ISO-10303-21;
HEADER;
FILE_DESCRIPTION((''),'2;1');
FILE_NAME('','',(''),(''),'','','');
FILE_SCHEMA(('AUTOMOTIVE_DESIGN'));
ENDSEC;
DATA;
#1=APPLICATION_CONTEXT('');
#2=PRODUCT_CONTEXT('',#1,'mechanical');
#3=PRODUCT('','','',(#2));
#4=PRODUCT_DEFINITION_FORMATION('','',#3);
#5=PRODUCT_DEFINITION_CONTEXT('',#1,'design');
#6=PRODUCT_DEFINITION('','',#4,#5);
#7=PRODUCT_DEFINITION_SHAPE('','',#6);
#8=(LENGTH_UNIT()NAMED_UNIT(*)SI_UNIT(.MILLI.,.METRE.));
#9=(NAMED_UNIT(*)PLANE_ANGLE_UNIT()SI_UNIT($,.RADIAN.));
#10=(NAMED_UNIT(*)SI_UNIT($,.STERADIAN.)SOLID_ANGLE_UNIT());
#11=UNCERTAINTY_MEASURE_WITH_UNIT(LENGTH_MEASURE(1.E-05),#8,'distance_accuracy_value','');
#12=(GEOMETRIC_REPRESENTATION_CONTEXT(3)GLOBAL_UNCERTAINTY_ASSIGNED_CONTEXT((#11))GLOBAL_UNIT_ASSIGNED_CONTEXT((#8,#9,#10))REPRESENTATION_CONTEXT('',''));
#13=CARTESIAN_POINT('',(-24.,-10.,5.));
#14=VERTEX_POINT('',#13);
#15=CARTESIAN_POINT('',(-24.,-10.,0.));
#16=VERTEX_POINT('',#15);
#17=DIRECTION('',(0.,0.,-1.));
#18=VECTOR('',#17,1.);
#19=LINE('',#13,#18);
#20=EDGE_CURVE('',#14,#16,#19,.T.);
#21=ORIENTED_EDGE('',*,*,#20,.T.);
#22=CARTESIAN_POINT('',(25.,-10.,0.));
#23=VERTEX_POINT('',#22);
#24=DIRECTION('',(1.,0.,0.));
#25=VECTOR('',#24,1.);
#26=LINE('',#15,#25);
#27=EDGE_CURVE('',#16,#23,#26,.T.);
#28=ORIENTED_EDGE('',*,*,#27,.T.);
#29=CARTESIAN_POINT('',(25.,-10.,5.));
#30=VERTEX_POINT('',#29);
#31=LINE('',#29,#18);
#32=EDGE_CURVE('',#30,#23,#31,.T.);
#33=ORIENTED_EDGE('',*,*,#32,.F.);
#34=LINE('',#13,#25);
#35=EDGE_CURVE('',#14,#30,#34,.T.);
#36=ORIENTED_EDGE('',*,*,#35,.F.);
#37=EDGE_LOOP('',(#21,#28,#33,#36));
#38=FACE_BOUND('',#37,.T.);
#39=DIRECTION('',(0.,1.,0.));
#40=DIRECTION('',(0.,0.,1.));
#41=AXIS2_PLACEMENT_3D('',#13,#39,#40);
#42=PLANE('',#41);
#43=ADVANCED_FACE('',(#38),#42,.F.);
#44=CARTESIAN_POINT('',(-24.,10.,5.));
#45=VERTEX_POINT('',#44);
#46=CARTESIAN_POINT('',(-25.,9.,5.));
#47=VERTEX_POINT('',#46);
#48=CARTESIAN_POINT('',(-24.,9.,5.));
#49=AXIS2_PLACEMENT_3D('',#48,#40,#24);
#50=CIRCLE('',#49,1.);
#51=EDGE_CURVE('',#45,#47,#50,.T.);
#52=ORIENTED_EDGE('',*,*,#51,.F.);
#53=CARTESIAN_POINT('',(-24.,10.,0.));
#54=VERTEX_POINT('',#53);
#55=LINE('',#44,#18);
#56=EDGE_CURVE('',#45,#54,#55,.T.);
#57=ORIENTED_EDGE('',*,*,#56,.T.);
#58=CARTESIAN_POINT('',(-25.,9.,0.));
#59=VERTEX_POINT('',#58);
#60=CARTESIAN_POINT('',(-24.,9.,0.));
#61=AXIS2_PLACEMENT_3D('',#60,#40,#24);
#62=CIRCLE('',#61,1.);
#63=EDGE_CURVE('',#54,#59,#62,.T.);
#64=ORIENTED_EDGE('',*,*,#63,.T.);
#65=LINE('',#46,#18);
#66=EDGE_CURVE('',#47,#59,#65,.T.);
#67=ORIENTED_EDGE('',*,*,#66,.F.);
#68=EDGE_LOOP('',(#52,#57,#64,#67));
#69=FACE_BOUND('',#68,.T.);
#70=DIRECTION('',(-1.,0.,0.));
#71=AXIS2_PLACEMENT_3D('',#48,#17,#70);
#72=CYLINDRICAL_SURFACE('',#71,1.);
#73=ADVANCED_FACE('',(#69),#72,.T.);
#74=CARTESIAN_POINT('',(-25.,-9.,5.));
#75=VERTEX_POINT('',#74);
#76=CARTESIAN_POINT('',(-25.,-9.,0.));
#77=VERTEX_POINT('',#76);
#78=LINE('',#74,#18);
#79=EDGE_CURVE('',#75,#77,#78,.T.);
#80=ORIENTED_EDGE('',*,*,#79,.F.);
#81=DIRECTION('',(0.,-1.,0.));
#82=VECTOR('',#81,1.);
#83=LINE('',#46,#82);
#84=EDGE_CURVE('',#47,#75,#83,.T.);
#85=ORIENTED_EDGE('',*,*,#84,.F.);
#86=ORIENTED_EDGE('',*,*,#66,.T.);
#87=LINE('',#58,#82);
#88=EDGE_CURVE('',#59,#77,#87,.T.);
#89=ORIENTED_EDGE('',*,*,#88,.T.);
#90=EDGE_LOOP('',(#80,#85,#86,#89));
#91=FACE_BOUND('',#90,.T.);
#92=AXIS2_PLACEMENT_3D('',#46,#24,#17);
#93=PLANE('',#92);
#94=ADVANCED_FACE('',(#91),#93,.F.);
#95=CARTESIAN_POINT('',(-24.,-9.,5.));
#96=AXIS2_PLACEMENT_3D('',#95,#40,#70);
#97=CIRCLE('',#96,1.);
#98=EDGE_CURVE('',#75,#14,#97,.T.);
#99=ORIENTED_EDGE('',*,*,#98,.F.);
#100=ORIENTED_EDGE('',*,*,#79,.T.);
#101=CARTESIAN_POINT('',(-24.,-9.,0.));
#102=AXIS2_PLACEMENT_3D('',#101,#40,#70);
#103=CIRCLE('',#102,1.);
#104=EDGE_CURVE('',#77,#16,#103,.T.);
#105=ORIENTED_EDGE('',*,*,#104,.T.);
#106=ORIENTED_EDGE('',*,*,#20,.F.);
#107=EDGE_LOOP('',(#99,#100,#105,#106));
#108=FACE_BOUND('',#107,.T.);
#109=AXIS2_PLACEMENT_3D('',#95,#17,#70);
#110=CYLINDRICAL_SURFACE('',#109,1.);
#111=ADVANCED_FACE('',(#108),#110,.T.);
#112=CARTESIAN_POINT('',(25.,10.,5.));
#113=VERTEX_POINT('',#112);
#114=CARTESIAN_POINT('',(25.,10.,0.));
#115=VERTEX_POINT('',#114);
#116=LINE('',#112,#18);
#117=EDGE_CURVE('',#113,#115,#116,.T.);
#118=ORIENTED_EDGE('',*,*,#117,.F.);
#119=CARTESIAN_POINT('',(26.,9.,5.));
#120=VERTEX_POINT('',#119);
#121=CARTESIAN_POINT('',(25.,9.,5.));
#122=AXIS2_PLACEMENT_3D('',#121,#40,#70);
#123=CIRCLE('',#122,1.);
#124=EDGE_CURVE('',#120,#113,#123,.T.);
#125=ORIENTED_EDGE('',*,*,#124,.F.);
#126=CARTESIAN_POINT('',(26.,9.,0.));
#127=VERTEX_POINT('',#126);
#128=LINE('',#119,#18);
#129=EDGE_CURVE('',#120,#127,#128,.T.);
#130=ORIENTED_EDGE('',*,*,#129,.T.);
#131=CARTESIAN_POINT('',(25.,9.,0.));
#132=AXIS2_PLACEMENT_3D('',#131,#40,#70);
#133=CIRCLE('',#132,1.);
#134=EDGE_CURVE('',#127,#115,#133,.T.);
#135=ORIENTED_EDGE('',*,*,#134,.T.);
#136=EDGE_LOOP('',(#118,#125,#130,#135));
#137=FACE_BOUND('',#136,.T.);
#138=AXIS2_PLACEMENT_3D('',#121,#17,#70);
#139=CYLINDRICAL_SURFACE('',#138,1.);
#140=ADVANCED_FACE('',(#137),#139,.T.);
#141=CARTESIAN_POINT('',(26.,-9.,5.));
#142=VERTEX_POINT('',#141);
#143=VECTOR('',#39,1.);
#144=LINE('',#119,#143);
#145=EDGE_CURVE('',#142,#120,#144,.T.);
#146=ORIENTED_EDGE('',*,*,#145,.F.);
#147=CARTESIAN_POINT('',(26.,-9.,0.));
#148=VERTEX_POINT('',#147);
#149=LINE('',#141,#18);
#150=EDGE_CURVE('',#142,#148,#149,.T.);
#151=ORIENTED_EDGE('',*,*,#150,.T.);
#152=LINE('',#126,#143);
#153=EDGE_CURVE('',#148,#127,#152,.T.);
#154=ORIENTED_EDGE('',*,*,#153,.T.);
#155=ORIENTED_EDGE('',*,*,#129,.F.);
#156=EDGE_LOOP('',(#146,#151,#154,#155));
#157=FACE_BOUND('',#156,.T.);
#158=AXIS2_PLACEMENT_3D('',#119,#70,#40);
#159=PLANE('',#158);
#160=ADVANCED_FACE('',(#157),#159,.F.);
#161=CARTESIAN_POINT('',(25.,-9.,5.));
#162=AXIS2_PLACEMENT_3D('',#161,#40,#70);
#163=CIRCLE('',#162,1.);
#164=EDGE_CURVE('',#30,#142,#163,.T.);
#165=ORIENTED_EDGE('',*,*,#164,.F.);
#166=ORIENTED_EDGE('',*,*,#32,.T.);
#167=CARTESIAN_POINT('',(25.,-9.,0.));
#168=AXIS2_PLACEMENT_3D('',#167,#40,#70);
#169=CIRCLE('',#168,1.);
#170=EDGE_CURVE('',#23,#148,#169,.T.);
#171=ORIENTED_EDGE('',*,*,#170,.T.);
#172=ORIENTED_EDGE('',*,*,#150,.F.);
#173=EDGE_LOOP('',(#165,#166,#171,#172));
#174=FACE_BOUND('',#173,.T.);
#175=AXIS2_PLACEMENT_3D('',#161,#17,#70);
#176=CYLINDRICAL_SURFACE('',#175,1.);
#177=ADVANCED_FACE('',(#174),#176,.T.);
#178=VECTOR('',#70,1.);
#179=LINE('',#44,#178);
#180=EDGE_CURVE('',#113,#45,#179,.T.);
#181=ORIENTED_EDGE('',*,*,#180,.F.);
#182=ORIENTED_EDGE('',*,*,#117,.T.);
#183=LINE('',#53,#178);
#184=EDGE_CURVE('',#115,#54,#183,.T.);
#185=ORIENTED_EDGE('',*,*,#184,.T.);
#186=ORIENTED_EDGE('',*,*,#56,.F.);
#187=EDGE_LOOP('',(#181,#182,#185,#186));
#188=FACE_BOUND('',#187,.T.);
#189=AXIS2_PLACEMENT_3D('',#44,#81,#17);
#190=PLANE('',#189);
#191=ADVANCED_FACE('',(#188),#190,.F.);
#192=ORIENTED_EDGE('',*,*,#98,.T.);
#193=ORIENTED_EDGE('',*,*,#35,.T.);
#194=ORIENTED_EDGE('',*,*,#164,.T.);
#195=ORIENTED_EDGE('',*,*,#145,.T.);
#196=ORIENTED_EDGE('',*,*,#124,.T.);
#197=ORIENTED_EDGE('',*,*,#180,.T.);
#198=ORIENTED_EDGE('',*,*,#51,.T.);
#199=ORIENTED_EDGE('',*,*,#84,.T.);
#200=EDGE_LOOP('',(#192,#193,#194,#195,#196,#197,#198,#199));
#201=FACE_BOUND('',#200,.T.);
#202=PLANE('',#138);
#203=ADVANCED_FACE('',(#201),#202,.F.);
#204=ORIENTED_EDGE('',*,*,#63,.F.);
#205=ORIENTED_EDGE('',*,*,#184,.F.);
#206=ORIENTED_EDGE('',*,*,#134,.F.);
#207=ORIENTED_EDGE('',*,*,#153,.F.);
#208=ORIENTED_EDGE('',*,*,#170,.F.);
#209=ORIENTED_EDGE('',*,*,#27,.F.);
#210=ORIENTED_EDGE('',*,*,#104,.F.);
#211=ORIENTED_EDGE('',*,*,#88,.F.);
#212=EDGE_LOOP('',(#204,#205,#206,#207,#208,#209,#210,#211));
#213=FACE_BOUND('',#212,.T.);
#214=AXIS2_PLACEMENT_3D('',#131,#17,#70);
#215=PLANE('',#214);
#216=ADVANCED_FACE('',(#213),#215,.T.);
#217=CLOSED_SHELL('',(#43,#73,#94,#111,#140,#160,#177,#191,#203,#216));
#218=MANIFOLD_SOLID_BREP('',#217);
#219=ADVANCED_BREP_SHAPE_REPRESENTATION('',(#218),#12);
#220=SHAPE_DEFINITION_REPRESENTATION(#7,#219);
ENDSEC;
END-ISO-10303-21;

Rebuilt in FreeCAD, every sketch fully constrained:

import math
import FreeCAD as App
import Part
import Sketcher

doc = App.newDocument("Part")
params = doc.addObject("Spreadsheet::Sheet", "Params")
for row, (alias, value) in enumerate([
    ("sketch1_radius", "1 mm"),
    ("sketch1_width", "49 mm"),
    ("sketch1_height", "18 mm"),
    ("pad1_length", "5 mm"),
], start=1):
    params.set(f"A{row}", alias)
    params.set(f"B{row}", "=" + value)
    params.setAlias(f"B{row}", alias)

body = doc.addObject("PartDesign::Body", "Body")

# Sketch on XY plane
sketch1 = body.newObject("Sketcher::SketchObject", "Sketch")
sketch1.AttachmentSupport = (doc.getObject("XY_Plane"), [""])
sketch1.MapMode = "FlatFace"
sketch1.addGeometry(Part.LineSegment(App.Vector(25, 10, 0), App.Vector(-24, 10, 0)), False)
sketch1.addGeometry(Part.ArcOfCircle(Part.Circle(App.Vector(-24, 9, 0), App.Vector(0, 0, 1), 1), math.radians(90), math.radians(180)), False)
sketch1.addGeometry(Part.LineSegment(App.Vector(-25, 9, 0), App.Vector(-25, -9, 0)), False)
sketch1.addGeometry(Part.ArcOfCircle(Part.Circle(App.Vector(-24, -9, 0), App.Vector(0, 0, 1), 1), math.radians(-180), math.radians(-90)), False)
sketch1.addGeometry(Part.LineSegment(App.Vector(-24, -10, 0), App.Vector(25, -10, 0)), False)
sketch1.addGeometry(Part.ArcOfCircle(Part.Circle(App.Vector(25, -9, 0), App.Vector(0, 0, 1), 1), math.radians(-90), math.radians(0)), False)
sketch1.addGeometry(Part.LineSegment(App.Vector(26, -9, 0), App.Vector(26, 9, 0)), False)
sketch1.addGeometry(Part.ArcOfCircle(Part.Circle(App.Vector(25, 9, 0), App.Vector(0, 0, 1), 1), math.radians(0), math.radians(90)), False)
sketch1.addConstraint(Sketcher.Constraint("Tangent", 0, 2, 1, 1))
sketch1.addConstraint(Sketcher.Constraint("Tangent", 1, 2, 2, 1))
sketch1.addConstraint(Sketcher.Constraint("Tangent", 2, 2, 3, 1))
sketch1.addConstraint(Sketcher.Constraint("Tangent", 3, 2, 4, 1))
sketch1.addConstraint(Sketcher.Constraint("Tangent", 4, 2, 5, 1))
sketch1.addConstraint(Sketcher.Constraint("Tangent", 5, 2, 6, 1))
sketch1.addConstraint(Sketcher.Constraint("Tangent", 6, 2, 7, 1))
sketch1.addConstraint(Sketcher.Constraint("Tangent", 7, 2, 0, 1))
sketch1.addConstraint(Sketcher.Constraint("Horizontal", 0))
sketch1.addConstraint(Sketcher.Constraint("Vertical", 2))
sketch1.addConstraint(Sketcher.Constraint("Horizontal", 4))
sketch1.addConstraint(Sketcher.Constraint("Vertical", 6))
sketch1.addConstraint(Sketcher.Constraint("Equal", 1, 3))
sketch1.addConstraint(Sketcher.Constraint("Equal", 3, 5))
sketch1.addConstraint(Sketcher.Constraint("Equal", 5, 7))
sketch1.addConstraint(Sketcher.Constraint("Radius", 1, 1.0))
sketch1.addConstraint(Sketcher.Constraint("DistanceX", 0, 2, 0, 1, 49.0))
sketch1.addConstraint(Sketcher.Constraint("DistanceY", 2, 2, 2, 1, 18.0))
sketch1.addConstraint(Sketcher.Constraint("DistanceX", 1, 3, -1, 1, 24.0))
sketch1.addConstraint(Sketcher.Constraint("DistanceY", -1, 1, 1, 3, 9.0))
sketch1.setExpression("Constraints[15]", "Params.sketch1_radius")
sketch1.setExpression("Constraints[16]", "Params.sketch1_width")
sketch1.setExpression("Constraints[17]", "Params.sketch1_height")
pad1 = body.newObject("PartDesign::Pad", "Pad")
pad1.Profile = sketch1
pad1.setExpression("Length", "Params.pad1_length")

doc.recompute()
